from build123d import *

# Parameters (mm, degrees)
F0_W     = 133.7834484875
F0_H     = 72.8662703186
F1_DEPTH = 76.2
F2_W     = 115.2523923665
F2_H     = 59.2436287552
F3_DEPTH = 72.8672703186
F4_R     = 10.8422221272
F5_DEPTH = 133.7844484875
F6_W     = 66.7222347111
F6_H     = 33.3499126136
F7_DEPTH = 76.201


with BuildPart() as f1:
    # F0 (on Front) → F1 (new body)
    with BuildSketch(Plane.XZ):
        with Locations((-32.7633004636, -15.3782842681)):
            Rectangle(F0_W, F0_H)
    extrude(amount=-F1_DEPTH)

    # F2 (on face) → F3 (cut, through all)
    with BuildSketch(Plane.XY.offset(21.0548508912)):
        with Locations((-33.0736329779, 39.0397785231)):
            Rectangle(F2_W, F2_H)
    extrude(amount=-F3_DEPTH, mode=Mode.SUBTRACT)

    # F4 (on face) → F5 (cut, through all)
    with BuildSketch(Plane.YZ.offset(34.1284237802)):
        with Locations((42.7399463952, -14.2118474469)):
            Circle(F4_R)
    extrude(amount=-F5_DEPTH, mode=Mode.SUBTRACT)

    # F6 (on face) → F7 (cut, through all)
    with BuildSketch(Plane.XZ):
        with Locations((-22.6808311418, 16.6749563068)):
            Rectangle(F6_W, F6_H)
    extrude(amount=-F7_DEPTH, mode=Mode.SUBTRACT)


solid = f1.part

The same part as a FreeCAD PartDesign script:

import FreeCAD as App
import Part
import Sketcher


def add_polygon(sketch, points):
    """Adds a closed chain of lines whose ends are joined by coincident constraints."""
    first, n = sketch.GeometryCount, len(points)
    for a, b in zip(points, points[1:] + points[:1]):
        sketch.addGeometry(Part.LineSegment(App.Vector(*a, 0), App.Vector(*b, 0)), False)
    for i in range(n):
        sketch.addConstraint(Sketcher.Constraint("Coincident", first + i, 2, first + (i + 1) % n, 1))

doc = App.newDocument("Part")
params = doc.addObject("Spreadsheet::Sheet", "Params")
for row, (alias, value) in enumerate([
    ("pad1_length", "3 in"),
], start=1):
    params.set(f"A{row}", alias)
    params.set(f"B{row}", "=" + value)
    params.setAlias(f"B{row}", alias)

body = doc.addObject("PartDesign::Body", "Body")

sketch1 = body.newObject("Sketcher::SketchObject", "Sketch")
sketch1.AttachmentSupport = (doc.getObject("XZ_Plane"), [""])
sketch1.MapMode = "FlatFace"
add_polygon(sketch1, [(-99.655025, 21.054851), (-99.655025, -51.811419), (34.128424, -51.811419), (34.128424, 21.054851)])
sketch1.addConstraint([
    Sketcher.Constraint("Vertical", 0),
    Sketcher.Constraint("Horizontal", 1),
    Sketcher.Constraint("Vertical", 2),
    Sketcher.Constraint("Horizontal", 3),
    Sketcher.Constraint("DistanceX", 1, 1, 1, 2, 133.783448),
    Sketcher.Constraint("DistanceY", 0, 2, 0, 1, 72.86627),
    Sketcher.Constraint("DistanceY", 0, 2, -1, 1, 51.811419),
    Sketcher.Constraint("DistanceX", 0, 2, -1, 1, 99.655025),
])
pad1 = body.newObject("PartDesign::Pad", "Pad")
pad1.Profile = sketch1
pad1.setExpression("Length", "Params.pad1_length")
pad1.Reversed = True

sketch2 = body.newObject("Sketcher::SketchObject", "Sketch001")
sketch2.AttachmentSupport = (doc.getObject("XY_Plane"), [""])
sketch2.MapMode = "FlatFace"
sketch2.AttachmentOffset = App.Placement(App.Vector(0, 0, 21.054851), App.Rotation())
add_polygon(sketch2, [(-90.699829, 68.661593), (-90.699829, 9.417964), (24.552563, 9.417964), (24.552563, 68.661593)])
sketch2.addConstraint([
    Sketcher.Constraint("Vertical", 0),
    Sketcher.Constraint("Horizontal", 1),
    Sketcher.Constraint("Vertical", 2),
    Sketcher.Constraint("Horizontal", 3),
    Sketcher.Constraint("DistanceY", 0, 2, 0, 1, 59.243629),
    Sketcher.Constraint("DistanceX", 1, 1, 1, 2, 115.252392),
    Sketcher.Constraint("DistanceX", 0, 2, -1, 1, 90.699829),
    Sketcher.Constraint("DistanceY", -1, 1, 0, 2, 9.417964),
])
pocket1 = body.newObject("PartDesign::Pocket", "Pocket")
pocket1.Profile = sketch2
pocket1.Type = "ThroughAll"

sketch3 = body.newObject("Sketcher::SketchObject", "Sketch002")
sketch3.AttachmentSupport = (doc.getObject("YZ_Plane"), [""])
sketch3.MapMode = "FlatFace"
sketch3.AttachmentOffset = App.Placement(App.Vector(0, 0, 34.128424), App.Rotation())
sketch3.addGeometry(Part.Circle(App.Vector(42.739946, -14.211847, 0), App.Vector(0, 0, 1), 10.842222), False)
sketch3.addConstraint([
    Sketcher.Constraint("Diameter", 0, 21.684444),
    Sketcher.Constraint("DistanceX", -1, 1, 0, 3, 42.739946),
    Sketcher.Constraint("DistanceY", 0, 3, -1, 1, 14.211847),
])
pocket2 = body.newObject("PartDesign::Pocket", "Pocket001")
pocket2.Profile = sketch3
pocket2.Type = "ThroughAll"

sketch4 = body.newObject("Sketcher::SketchObject", "Sketch003")
sketch4.AttachmentSupport = (doc.getObject("XZ_Plane"), [""])
sketch4.MapMode = "FlatFace"
add_polygon(sketch4, [(-56.041948, 33.349913), (-56.041948, 0), (10.680286, 0), (10.680286, 33.349913)])
sketch4.addConstraint([
    Sketcher.Constraint("Vertical", 0),
    Sketcher.Constraint("Horizontal", 1),
    Sketcher.Constraint("Vertical", 2),
    Sketcher.Constraint("Horizontal", 3),
    Sketcher.Constraint("PointOnObject", 0, 2, -1),
    Sketcher.Constraint("DistanceX", 1, 1, 1, 2, 66.722235),
    Sketcher.Constraint("DistanceY", 0, 2, 0, 1, 33.349913),
    Sketcher.Constraint("DistanceX", 0, 2, -1, 1, 56.041948),
])
pocket3 = body.newObject("PartDesign::Pocket", "Pocket002")
pocket3.Profile = sketch4
pocket3.Type = "ThroughAll"

doc.recompute()
